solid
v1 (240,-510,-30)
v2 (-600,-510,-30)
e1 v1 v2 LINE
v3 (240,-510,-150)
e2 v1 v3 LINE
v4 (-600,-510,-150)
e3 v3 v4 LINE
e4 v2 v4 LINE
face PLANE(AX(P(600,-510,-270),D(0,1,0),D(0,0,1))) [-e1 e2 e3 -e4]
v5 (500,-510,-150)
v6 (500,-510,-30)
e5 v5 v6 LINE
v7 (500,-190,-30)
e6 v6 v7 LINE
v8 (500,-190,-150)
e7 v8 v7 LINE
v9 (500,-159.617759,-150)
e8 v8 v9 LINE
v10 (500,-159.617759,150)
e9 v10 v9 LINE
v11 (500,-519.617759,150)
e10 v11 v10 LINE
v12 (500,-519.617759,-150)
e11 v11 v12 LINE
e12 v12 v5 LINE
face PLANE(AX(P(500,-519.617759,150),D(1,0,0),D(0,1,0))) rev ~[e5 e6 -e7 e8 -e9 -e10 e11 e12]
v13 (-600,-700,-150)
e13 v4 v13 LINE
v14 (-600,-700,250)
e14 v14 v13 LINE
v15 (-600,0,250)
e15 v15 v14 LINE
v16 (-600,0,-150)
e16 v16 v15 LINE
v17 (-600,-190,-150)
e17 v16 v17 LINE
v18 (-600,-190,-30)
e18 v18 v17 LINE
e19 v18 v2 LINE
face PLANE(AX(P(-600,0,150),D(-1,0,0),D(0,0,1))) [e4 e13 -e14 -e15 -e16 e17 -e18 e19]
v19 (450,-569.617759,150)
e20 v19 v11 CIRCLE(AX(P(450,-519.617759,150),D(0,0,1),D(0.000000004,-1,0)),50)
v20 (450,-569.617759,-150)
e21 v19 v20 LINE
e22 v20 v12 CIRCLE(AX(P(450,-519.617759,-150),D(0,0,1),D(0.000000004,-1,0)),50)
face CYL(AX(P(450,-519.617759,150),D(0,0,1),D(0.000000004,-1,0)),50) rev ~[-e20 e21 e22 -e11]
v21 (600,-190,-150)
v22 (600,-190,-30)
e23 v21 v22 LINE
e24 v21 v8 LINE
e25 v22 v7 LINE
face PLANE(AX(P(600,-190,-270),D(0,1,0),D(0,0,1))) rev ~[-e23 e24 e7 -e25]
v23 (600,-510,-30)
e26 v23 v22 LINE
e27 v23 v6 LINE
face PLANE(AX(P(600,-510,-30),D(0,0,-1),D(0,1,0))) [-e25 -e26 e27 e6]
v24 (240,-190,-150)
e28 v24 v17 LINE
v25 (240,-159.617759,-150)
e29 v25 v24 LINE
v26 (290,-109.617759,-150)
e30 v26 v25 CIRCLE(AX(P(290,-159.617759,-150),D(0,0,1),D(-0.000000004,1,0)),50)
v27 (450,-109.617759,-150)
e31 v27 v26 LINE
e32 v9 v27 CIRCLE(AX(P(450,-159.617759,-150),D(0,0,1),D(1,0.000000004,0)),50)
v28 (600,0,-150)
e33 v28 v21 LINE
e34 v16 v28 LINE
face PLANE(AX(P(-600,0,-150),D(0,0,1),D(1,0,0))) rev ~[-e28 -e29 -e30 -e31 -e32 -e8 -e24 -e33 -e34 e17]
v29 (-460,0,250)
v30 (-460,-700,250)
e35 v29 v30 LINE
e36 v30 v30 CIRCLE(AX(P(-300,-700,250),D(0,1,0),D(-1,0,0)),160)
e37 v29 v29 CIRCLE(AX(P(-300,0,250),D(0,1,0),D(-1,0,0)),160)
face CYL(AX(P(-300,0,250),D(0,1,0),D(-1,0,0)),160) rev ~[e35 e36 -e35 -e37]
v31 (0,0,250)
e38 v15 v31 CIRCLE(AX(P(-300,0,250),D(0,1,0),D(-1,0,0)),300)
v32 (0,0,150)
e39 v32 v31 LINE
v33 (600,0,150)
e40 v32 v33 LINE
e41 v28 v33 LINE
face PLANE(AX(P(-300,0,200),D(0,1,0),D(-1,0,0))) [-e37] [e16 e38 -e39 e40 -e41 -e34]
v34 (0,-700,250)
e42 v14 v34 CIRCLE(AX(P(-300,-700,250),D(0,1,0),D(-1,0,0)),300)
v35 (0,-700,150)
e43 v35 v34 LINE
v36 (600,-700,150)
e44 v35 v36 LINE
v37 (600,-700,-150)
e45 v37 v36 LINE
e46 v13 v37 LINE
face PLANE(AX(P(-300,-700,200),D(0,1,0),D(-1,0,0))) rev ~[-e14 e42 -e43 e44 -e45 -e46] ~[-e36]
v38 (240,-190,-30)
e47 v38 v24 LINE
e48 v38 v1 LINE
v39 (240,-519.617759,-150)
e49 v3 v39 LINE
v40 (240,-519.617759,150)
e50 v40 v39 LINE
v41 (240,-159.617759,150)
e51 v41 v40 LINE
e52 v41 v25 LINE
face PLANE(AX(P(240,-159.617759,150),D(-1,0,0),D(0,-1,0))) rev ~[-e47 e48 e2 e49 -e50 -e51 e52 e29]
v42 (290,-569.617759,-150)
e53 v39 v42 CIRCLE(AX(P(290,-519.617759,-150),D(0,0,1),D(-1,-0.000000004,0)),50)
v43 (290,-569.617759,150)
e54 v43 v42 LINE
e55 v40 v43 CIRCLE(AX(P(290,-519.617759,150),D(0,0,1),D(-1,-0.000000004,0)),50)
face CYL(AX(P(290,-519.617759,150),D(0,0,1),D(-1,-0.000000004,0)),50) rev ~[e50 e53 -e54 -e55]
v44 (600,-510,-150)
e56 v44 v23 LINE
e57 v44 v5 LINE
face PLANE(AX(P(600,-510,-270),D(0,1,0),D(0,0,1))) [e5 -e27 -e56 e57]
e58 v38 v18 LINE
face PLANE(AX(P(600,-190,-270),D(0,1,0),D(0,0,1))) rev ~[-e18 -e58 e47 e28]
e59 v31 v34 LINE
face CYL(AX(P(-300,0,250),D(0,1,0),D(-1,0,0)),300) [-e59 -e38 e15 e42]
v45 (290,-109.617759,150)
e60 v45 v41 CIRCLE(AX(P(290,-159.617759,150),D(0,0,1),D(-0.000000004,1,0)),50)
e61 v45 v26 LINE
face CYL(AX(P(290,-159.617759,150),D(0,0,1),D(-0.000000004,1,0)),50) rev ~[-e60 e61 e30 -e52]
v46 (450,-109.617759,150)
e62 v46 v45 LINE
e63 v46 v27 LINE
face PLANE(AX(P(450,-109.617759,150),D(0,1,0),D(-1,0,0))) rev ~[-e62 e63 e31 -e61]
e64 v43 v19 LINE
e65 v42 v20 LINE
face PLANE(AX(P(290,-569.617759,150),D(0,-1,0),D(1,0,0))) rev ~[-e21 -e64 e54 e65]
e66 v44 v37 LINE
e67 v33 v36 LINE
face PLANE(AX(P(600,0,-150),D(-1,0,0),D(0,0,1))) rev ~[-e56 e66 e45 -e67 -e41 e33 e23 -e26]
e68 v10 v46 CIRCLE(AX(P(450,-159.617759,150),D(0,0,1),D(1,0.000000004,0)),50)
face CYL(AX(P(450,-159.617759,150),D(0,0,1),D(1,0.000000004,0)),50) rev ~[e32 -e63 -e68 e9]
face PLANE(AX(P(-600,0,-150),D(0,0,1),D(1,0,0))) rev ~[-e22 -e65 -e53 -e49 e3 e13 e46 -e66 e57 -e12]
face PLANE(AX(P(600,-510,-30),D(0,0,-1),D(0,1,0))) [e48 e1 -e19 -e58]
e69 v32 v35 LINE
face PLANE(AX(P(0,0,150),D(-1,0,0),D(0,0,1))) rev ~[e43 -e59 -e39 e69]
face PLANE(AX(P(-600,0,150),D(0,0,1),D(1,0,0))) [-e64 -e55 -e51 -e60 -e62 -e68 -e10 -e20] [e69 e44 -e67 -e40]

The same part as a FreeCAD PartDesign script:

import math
import FreeCAD as App
import Part
import Sketcher

V = App.Vector


def add_polygon(sketch, points):
    """Adds a closed chain of lines whose ends are joined by coincident constraints."""
    first, n = sketch.GeometryCount, len(points)
    for a, b in zip(points, points[1:] + points[:1]):
        sketch.addGeometry(Part.LineSegment(App.Vector(*a, 0), App.Vector(*b, 0)), False)
    for i in range(n):
        sketch.addConstraint(Sketcher.Constraint("Coincident", first + i, 2, first + (i + 1) % n, 1))

doc = App.newDocument("Part")
params = doc.addObject("Spreadsheet::Sheet", "Params")
for row, (alias, value) in enumerate([
    ("sketch1_width", "1200 mm"),
    ("sketch1_height", "300 mm"),
    ("pad1_length", "700 mm"),
    ("sketch2_radius", "300 mm"),
    ("sketch2_height", "100 mm"),
    ("pad2_length", "700 mm"),
    ("sketch3_diameter", "320 mm"),
    ("sketch4_radius", "50 mm"),
    ("sketch4_width", "160 mm"),
    ("sketch4_height", "360 mm"),
    ("sketch5_width", "320 mm"),
    ("sketch5_height", "240 mm"),
], start=1):
    params.set(f"A{row}", alias)
    params.set(f"B{row}", "=" + value)
    params.setAlias(f"B{row}", alias)

body = doc.addObject("PartDesign::Body", "Body")

sketch1 = body.newObject("Sketcher::SketchObject", "Sketch")
sketch1.AttachmentSupport = (doc.getObject("XZ_Plane"), [""])
sketch1.MapMode = "FlatFace"
add_polygon(sketch1, [(-600, 150), (-600, -150), (600, -150), (600, 150)])
sketch1.addConstraint([
    Sketcher.Constraint("Vertical", 0),
    Sketcher.Constraint("Horizontal", 1),
    Sketcher.Constraint("Vertical", 2),
    Sketcher.Constraint("Horizontal", 3),
    Sketcher.Constraint("Symmetric", 0, 2, 2, 2, -1, 1),
    Sketcher.Constraint("DistanceX", 1, 1, 1, 2, 1200.0),
    Sketcher.Constraint("DistanceY", 0, 2, 0, 1, 300.0),
])
sketch1.setExpression("Constraints[9]", "Params.sketch1_width")
sketch1.setExpression("Constraints[10]", "Params.sketch1_height")
pad1 = body.newObject("PartDesign::Pad", "Pad")
pad1.Profile = sketch1
pad1.setExpression("Length", "Params.pad1_length")

sketch2 = body.newObject("Sketcher::SketchObject", "Sketch001")
sketch2.AttachmentSupport = (doc.getObject("XZ_Plane"), [""])
sketch2.MapMode = "FlatFace"
sketch2.addGeometry([
    Part.LineSegment(V(0, 250, 0), V(0, 150, 0)),
    Part.LineSegment(V(0, 150, 0), V(-600, 150, 0)),
    Part.LineSegment(V(-600, 150, 0), V(-600, 250, 0)),
    Part.ArcOfCircle(Part.Circle(V(-300, 250, 0), V(0, 0, 1), 300), math.radians(0), math.radians(180)),
], False)
sketch2.addConstraint([
    Sketcher.Constraint("Coincident", 0, 2, 1, 1),
    Sketcher.Constraint("Coincident", 1, 2, 2, 1),
    Sketcher.Constraint("Tangent", 2, 2, 3, 2),
    Sketcher.Constraint("Tangent", 3, 1, 0, 1),
    Sketcher.Constraint("Vertical", 0),
    Sketcher.Constraint("Horizontal", 1),
    Sketcher.Constraint("Vertical", 2),
    Sketcher.Constraint("PointOnObject", 0, 2, -2),
    Sketcher.Constraint("Radius", 3, 300.0),
    Sketcher.Constraint("DistanceY", 0, 2, 0, 1, 100.0),
    Sketcher.Constraint("DistanceY", -1, 1, 3, 3, 250.0),
])
sketch2.setExpression("Constraints[8]", "Params.sketch2_radius")
sketch2.setExpression("Constraints[9]", "Params.sketch2_height")
pad2 = body.newObject("PartDesign::Pad", "Pad001")
pad2.Profile = sketch2
pad2.setExpression("Length", "Params.pad2_length")

sketch3 = body.newObject("Sketcher::SketchObject", "Sketch002")
sketch3.AttachmentSupport = (doc.getObject("XZ_Plane"), [""])
sketch3.MapMode = "FlatFace"
sketch3.addGeometry(Part.Circle(V(-300, 250, 0), V(0, 0, 1), 160), False)
sketch3.addConstraint([
    Sketcher.Constraint("Diameter", 0, 320.0),
    Sketcher.Constraint("DistanceX", 0, 3, -1, 1, 300.0),
    Sketcher.Constraint("DistanceY", -1, 1, 0, 3, 250.0),
])
sketch3.setExpression("Constraints[0]", "Params.sketch3_diameter")
pocket1 = body.newObject("PartDesign::Pocket", "Pocket")
pocket1.Profile = sketch3
pocket1.Type = "ThroughAll"
pocket1.Reversed = True

sketch4 = body.newObject("Sketcher::SketchObject", "Sketch003")
sketch4.AttachmentSupport = (doc.getObject("XY_Plane"), [""])
sketch4.MapMode = "FlatFace"
sketch4.AttachmentOffset = App.Placement(V(0, 0, 150), App.Rotation())
sketch4.addGeometry([
    Part.LineSegment(V(450, -110, 0), V(290, -110, 0)),
    Part.ArcOfCircle(Part.Circle(V(290, -160, 0), V(0, 0, 1), 50), math.radians(90), math.radians(180)),
    Part.LineSegment(V(240, -160, 0), V(240, -520, 0)),
    Part.ArcOfCircle(Part.Circle(V(290, -520, 0), V(0, 0, 1), 50), math.radians(-180), math.radians(-90)),
    Part.LineSegment(V(290, -570, 0), V(450, -570, 0)),
    Part.ArcOfCircle(Part.Circle(V(450, -520, 0), V(0, 0, 1), 50), math.radians(-90), math.radians(0)),
    Part.LineSegment(V(500, -520, 0), V(500, -160, 0)),
    Part.ArcOfCircle(Part.Circle(V(450, -160, 0), V(0, 0, 1), 50), math.radians(0), math.radians(90)),
], False)
sketch4.addConstraint([
    Sketcher.Constraint("Tangent", 0, 2, 1, 1),
    Sketcher.Constraint("Tangent", 1, 2, 2, 1),
    Sketcher.Constraint("Tangent", 2, 2, 3, 1),
    Sketcher.Constraint("Tangent", 3, 2, 4, 1),
    Sketcher.Constraint("Tangent", 4, 2, 5, 1),
    Sketcher.Constraint("Tangent", 5, 2, 6, 1),
    Sketcher.Constraint("Tangent", 6, 2, 7, 1),
    Sketcher.Constraint("Tangent", 7, 2, 0, 1),
    Sketcher.Constraint("Horizontal", 0),
    Sketcher.Constraint("Vertical", 2),
    Sketcher.Constraint("Horizontal", 4),
    Sketcher.Constraint("Vertical", 6),
    Sketcher.Constraint("Equal", 1, 3),
    Sketcher.Constraint("Equal", 3, 5),
    Sketcher.Constraint("Equal", 5, 7),
    Sketcher.Constraint("Radius", 1, 50.0),
    Sketcher.Constraint("DistanceX", 0, 2, 0, 1, 160.0),
    Sketcher.Constraint("DistanceY", 2, 2, 2, 1, 360.0),
    Sketcher.Constraint("DistanceX", -1, 1, 1, 3, 290.0),
    Sketcher.Constraint("DistanceY", 1, 3, -1, 1, 159.617759),
])
sketch4.setExpression("Constraints[15]", "Params.sketch4_radius")
sketch4.setExpression("Constraints[16]", "Params.sketch4_width")
sketch4.setExpression("Constraints[17]", "Params.sketch4_height")
pocket2 = body.newObject("PartDesign::Pocket", "Pocket001")
pocket2.Profile = sketch4
pocket2.Type = "ThroughAll"

sketch5 = body.newObject("Sketcher::SketchObject", "Sketch004")
sketch5.AttachmentSupport = (doc.getObject("YZ_Plane"), [""])
sketch5.MapMode = "FlatFace"
sketch5.AttachmentOffset = App.Placement(V(0, 0, 600), App.Rotation())
add_polygon(sketch5, [(-510, -30), (-510, -270), (-190, -270), (-190, -30)])
sketch5.addConstraint([
    Sketcher.Constraint("Vertical", 0),
    Sketcher.Constraint("Horizontal", 1),
    Sketcher.Constraint("Vertical", 2),
    Sketcher.Constraint("Horizontal", 3),
    Sketcher.Constraint("DistanceX", 1, 1, 1, 2, 320.0),
    Sketcher.Constraint("DistanceY", 0, 2, 0, 1, 240.0),
    Sketcher.Constraint("DistanceX", 0, 2, -1, 1, 510.0),
    Sketcher.Constraint("DistanceY", 0, 2, -1, 1, 270.0),
])
sketch5.setExpression("Constraints[8]", "Params.sketch5_width")
sketch5.setExpression("Constraints[9]", "Params.sketch5_height")
pocket3 = body.newObject("PartDesign::Pocket", "Pocket002")
pocket3.Profile = sketch5
pocket3.Type = "ThroughAll"

doc.recompute()
